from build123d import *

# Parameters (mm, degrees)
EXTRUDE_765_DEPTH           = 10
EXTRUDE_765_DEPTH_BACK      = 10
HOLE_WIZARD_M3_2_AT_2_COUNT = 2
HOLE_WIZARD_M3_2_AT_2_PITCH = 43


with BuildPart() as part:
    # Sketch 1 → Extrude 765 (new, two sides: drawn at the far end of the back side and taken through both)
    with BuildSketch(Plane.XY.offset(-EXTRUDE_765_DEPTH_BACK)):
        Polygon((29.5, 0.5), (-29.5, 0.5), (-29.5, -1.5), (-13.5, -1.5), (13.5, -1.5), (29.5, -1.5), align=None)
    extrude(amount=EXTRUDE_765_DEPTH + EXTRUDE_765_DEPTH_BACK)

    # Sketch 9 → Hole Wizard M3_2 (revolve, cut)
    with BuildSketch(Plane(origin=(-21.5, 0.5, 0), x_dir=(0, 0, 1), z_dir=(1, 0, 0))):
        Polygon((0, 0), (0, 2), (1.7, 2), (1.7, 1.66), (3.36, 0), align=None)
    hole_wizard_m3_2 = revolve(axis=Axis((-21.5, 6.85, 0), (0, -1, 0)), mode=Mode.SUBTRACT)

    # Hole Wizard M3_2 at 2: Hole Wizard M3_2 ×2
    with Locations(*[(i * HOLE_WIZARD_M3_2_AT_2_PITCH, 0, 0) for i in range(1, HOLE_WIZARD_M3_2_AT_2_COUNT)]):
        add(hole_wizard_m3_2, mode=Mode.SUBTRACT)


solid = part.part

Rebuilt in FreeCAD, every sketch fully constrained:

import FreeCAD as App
import Part
import Sketcher
from FreeCAD import Vector
Q = App.Units.Quantity


def add_polygon(sketch, points):
    """Adds a closed chain of lines whose ends are joined by coincident constraints."""
    first, n = sketch.GeometryCount, len(points)
    for a, b in zip(points, points[1:] + points[:1]):
        sketch.addGeometry(Part.LineSegment(App.Vector(*a, 0), App.Vector(*b, 0)), False)
    for i in range(n):
        sketch.addConstraint(Sketcher.Constraint("Coincident", first + i, 2, first + (i + 1) % n, 1))

doc = App.newDocument("Part")
params = doc.addObject("Spreadsheet::Sheet", "Params")
for row, (alias, value) in enumerate([
    ("sketch1_width", "59 mm"),
    ("sketch1_height", "2 mm"),
    ("pad1_length", "10 mm"),
    ("pad1_length2", "10 mm"),
    ("sketch2_width", "2 mm"),
    ("sketch2_height", "1.7 mm"),
    ("sketch2_width2", "0.34 mm"),
    ("groove_angle", "360 deg"),
    ("linearpattern_pitch", "43 mm"),
], start=1):
    params.set(f"A{row}", alias)
    params.set(f"B{row}", "=" + value)
    params.setAlias(f"B{row}", alias)

body = doc.addObject("PartDesign::Body", "Body")

sketch1 = body.newObject("Sketcher::SketchObject", "Sketch")
sketch1.AttachmentSupport = (doc.getObject("XY_Plane"), [""])
sketch1.MapMode = "FlatFace"
add_polygon(sketch1, [(29.5, 0.5), (-29.5, 0.5), (-29.5, -1.5), (29.5, -1.5)])
sketch1.addConstraint([
    Sketcher.Constraint("Horizontal", 0),
    Sketcher.Constraint("Vertical", 1),
    Sketcher.Constraint("Horizontal", 2),
    Sketcher.Constraint("Vertical", 3),
    Sketcher.Constraint("DistanceX", 0, 2, 0, 1, 59.0),
    Sketcher.Constraint("DistanceY", 1, 2, 1, 1, 2.0),
    Sketcher.Constraint("DistanceX", 0, 2, -1, 1, 29.5),
    Sketcher.Constraint("DistanceY", -1, 1, 0, 2, 0.5),
])
sketch1.setExpression("Constraints[8]", "Params.sketch1_width")
sketch1.setExpression("Constraints[9]", "Params.sketch1_height")
pad1 = body.newObject("PartDesign::Pad", "Pad")
pad1.Profile = sketch1
pad1.Type = "TwoLengths"
pad1.setExpression("Length", "Params.pad1_length")
pad1.setExpression("Length2", "Params.pad1_length2")

sketch2 = body.newObject("Sketcher::SketchObject", "Sketch001")
sketch2.AttachmentSupport = (doc.getObject("YZ_Plane"), [""])
sketch2.MapMode = "FlatFace"
sketch2.AttachmentOffset = App.Placement(Vector(0, 0, -21.5), App.Rotation())
add_polygon(sketch2, [(-1.5, 0), (0.5, 0), (0.5, 3.36), (-1.16, 1.7), (-1.5, 1.7)])
sketch2.addConstraint([
    Sketcher.Constraint("Horizontal", 0),
    Sketcher.Constraint("Vertical", 1),
    Sketcher.Constraint("Horizontal", 3),
    Sketcher.Constraint("Vertical", 4),
    Sketcher.Constraint("PointOnObject", 0, 2, -1),
    Sketcher.Constraint("DistanceX", 0, 1, 0, 2, 2.0),
    Sketcher.Constraint("Angle", 2, Q("-135 deg")),
    Sketcher.Constraint("DistanceY", 4, 2, 4, 1, 1.7),
    Sketcher.Constraint("DistanceX", 3, 2, 3, 1, 0.34),
    Sketcher.Constraint("DistanceX", -1, 1, 0, 2, 0.5),
])
sketch2.setExpression("Constraints[10]", "Params.sketch2_width")
sketch2.setExpression("Constraints[12]", "Params.sketch2_height")
sketch2.setExpression("Constraints[13]", "Params.sketch2_width2")
groove = body.newObject("PartDesign::Groove", "Groove")
groove.Profile = sketch2
groove.ReferenceAxis = (sketch2, ["H_Axis"])
groove.setExpression("Angle", "Params.groove_angle")
doc.recompute()

linearpattern = body.newObject("PartDesign::LinearPattern", "LinearPattern")
linearpattern.Originals = [groove]
linearpattern.Direction = (doc.getObject("X_Axis"), [""])
linearpattern.Mode = "offset"
linearpattern.setExpression("Offset", "Params.linearpattern_pitch")
linearpattern.Occurrences = 2
body.Tip = linearpattern

doc.recompute()
